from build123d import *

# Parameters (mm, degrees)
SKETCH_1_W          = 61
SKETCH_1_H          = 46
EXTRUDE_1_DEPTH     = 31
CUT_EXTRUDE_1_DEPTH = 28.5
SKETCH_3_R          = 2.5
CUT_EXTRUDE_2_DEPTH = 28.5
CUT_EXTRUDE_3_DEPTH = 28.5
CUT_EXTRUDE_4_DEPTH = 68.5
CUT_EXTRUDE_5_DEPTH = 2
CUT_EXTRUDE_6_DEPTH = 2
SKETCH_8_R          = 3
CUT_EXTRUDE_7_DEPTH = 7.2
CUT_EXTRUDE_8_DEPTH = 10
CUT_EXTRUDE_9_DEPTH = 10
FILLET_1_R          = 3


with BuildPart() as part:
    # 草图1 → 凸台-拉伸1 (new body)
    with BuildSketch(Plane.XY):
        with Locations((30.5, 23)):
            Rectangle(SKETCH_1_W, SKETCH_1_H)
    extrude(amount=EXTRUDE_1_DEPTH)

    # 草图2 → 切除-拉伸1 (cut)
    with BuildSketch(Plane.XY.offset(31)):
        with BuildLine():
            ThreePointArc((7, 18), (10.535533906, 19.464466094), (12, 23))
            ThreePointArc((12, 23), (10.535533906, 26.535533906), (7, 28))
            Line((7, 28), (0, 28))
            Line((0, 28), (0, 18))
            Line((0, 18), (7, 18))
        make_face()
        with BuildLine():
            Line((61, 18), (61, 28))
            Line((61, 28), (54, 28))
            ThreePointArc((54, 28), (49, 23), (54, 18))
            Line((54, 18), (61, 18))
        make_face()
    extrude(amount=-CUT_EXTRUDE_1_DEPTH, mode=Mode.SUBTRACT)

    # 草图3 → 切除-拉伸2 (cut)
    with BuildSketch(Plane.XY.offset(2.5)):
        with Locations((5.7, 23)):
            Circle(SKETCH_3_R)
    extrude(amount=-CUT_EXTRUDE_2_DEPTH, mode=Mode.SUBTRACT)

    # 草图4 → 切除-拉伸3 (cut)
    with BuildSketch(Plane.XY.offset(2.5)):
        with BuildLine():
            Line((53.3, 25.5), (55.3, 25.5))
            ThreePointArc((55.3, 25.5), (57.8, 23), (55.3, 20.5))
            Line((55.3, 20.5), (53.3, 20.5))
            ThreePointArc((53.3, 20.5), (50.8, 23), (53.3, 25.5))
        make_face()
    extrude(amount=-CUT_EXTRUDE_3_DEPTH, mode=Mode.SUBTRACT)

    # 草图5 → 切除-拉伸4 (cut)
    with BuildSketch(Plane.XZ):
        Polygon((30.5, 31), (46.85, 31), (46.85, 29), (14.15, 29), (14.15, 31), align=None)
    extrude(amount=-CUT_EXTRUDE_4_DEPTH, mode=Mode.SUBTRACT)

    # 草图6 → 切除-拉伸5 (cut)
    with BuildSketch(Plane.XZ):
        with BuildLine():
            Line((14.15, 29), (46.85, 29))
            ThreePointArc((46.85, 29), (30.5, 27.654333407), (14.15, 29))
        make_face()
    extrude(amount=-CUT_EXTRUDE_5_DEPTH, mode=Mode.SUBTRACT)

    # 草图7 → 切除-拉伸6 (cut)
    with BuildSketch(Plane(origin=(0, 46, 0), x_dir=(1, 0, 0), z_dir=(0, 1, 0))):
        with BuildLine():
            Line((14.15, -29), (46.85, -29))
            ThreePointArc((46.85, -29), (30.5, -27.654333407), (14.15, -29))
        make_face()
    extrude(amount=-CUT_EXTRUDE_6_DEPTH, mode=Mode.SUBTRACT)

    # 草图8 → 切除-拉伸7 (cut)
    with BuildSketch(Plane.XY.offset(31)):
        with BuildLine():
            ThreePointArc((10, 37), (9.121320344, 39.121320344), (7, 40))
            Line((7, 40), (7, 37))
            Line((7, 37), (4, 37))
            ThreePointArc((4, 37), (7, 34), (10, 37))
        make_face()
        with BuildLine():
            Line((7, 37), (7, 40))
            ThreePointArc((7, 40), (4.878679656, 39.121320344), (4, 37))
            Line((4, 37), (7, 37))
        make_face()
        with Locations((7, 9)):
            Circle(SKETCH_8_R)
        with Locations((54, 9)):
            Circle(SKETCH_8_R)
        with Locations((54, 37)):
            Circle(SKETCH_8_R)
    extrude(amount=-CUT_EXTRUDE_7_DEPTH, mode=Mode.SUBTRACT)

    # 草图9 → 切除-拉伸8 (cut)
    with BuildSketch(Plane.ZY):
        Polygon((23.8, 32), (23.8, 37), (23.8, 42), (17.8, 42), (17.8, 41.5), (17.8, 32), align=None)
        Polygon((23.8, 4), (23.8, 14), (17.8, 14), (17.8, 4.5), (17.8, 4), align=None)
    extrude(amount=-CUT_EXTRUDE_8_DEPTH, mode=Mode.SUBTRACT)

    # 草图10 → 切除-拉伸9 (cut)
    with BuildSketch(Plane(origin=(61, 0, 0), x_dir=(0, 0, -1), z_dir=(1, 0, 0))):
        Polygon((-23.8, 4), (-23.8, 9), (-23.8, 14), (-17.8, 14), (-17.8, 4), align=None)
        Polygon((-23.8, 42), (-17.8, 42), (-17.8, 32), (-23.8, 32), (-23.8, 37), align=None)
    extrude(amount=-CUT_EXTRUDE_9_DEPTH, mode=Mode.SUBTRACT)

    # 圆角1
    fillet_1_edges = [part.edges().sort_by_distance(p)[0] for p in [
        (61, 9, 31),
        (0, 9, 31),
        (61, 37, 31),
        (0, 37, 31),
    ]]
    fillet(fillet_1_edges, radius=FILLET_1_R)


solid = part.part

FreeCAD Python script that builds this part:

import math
import FreeCAD as App
import Part
import Sketcher

V = App.Vector


def edges_at(feature, points):
    """Names of the edges that pass closest to the given points."""
    edges = feature.Shape.Edges
    near = lambda p: min(range(len(edges)), key=lambda i: edges[i].distToShape(Part.Vertex(*p))[0])
    return sorted({f"Edge{near(p) + 1}" for p in points})


def add_polygon(sketch, points):
    """Adds a closed chain of lines whose ends are joined by coincident constraints."""
    first, n = sketch.GeometryCount, len(points)
    for a, b in zip(points, points[1:] + points[:1]):
        sketch.addGeometry(Part.LineSegment(App.Vector(*a, 0), App.Vector(*b, 0)), False)
    for i in range(n):
        sketch.addConstraint(Sketcher.Constraint("Coincident", first + i, 2, first + (i + 1) % n, 1))

doc = App.newDocument("Part")
body = doc.addObject("PartDesign::Body", "Body")

sketch1 = doc.addObject("Sketcher::SketchObject", "Sketch")
body.addObject(sketch1)
sketch1.AttachmentSupport = (doc.XY_Plane, [""])
sketch1.MapMode = "FlatFace"
add_polygon(sketch1, [(0, 46), (0, 0), (61, 0), (61, 46)])
sketch1.addConstraint(Sketcher.Constraint("Vertical", 0))
sketch1.addConstraint(Sketcher.Constraint("Horizontal", 1))
sketch1.addConstraint(Sketcher.Constraint("Vertical", 2))
sketch1.addConstraint(Sketcher.Constraint("Horizontal", 3))
sketch1.addConstraint(Sketcher.Constraint("Coincident", 0, 2, -1, 1))
sketch1.addConstraint(Sketcher.Constraint("DistanceX", 1, 1, 1, 2, 61.0))
sketch1.addConstraint(Sketcher.Constraint("DistanceY", 0, 2, 0, 1, 46.0))
pad1 = doc.addObject("PartDesign::Pad", "Pad")
body.addObject(pad1)
pad1.Profile = sketch1
pad1.Length = 31

sketch2 = doc.addObject("Sketcher::SketchObject", "Sketch001")
body.addObject(sketch2)
sketch2.AttachmentSupport = (doc.XY_Plane, [""])
sketch2.MapMode = "FlatFace"
sketch2.AttachmentOffset = App.Placement(V(0, 0, 31), App.Rotation())
sketch2.addGeometry(Part.ArcOfCircle(Part.Circle(V(7, 23, 0), V(0, 0, 1), 5), math.radians(-90), math.radians(0)), False)
sketch2.addGeometry(Part.ArcOfCircle(Part.Circle(V(7, 23, 0), V(0, 0, 1), 5), math.radians(0), math.radians(90)), False)
sketch2.addGeometry(Part.LineSegment(V(7, 28, 0), V(0, 28, 0)), False)
sketch2.addGeometry(Part.LineSegment(V(0, 28, 0), V(0, 18, 0)), False)
sketch2.addGeometry(Part.LineSegment(V(0, 18, 0), V(7, 18, 0)), False)
sketch2.addGeometry(Part.LineSegment(V(61, 18, 0), V(61, 28, 0)), False)
sketch2.addGeometry(Part.LineSegment(V(61, 28, 0), V(54, 28, 0)), False)
sketch2.addGeometry(Part.ArcOfCircle(Part.Circle(V(54, 23, 0), V(0, 0, 1), 5), math.radians(90), math.radians(270)), False)
sketch2.addGeometry(Part.LineSegment(V(54, 18, 0), V(61, 18, 0)), False)
sketch2.addConstraint(Sketcher.Constraint("Tangent", 0, 2, 1, 1))
sketch2.addConstraint(Sketcher.Constraint("Tangent", 1, 2, 2, 1))
sketch2.addConstraint(Sketcher.Constraint("Coincident", 2, 2, 3, 1))
sketch2.addConstraint(Sketcher.Constraint("Coincident", 3, 2, 4, 1))
sketch2.addConstraint(Sketcher.Constraint("Tangent", 4, 2, 0, 1))
sketch2.addConstraint(Sketcher.Constraint("Coincident", 5, 2, 6, 1))
sketch2.addConstraint(Sketcher.Constraint("Tangent", 6, 2, 7, 1))
sketch2.addConstraint(Sketcher.Constraint("Tangent", 7, 2, 8, 1))
sketch2.addConstraint(Sketcher.Constraint("Coincident", 8, 2, 5, 1))
sketch2.addConstraint(Sketcher.Constraint("Horizontal", 2))
sketch2.addConstraint(Sketcher.Constraint("Vertical", 3))
sketch2.addConstraint(Sketcher.Constraint("Horizontal", 4))
sketch2.addConstraint(Sketcher.Constraint("Vertical", 5))
sketch2.addConstraint(Sketcher.Constraint("Horizontal", 6))
sketch2.addConstraint(Sketcher.Constraint("Horizontal", 8))
sketch2.addConstraint(Sketcher.Constraint("Equal", 0, 1))
sketch2.addConstraint(Sketcher.Constraint("Equal", 1, 7))
sketch2.addConstraint(Sketcher.Constraint("PointOnObject", 2, 2, -2))
sketch2.addConstraint(Sketcher.Constraint("Horizontal", 1, 3, 7, 3))
sketch2.addConstraint(Sketcher.Constraint("Horizontal", 7, 3, 0, 2))
sketch2.addConstraint(Sketcher.Constraint("Equal", 4, 6))
sketch2.addConstraint(Sketcher.Constraint("Radius", 0, 5.0))
sketch2.addConstraint(Sketcher.Constraint("DistanceX", 2, 2, 2, 1, 7.0))
sketch2.addConstraint(Sketcher.Constraint("DistanceY", -1, 1, 0, 3, 23.0))
sketch2.addConstraint(Sketcher.Constraint("DistanceX", -1, 1, 7, 3, 54.0))
pocket1 = doc.addObject("PartDesign::Pocket", "Pocket")
body.addObject(pocket1)
pocket1.Profile = sketch2
pocket1.Length = 28.5

sketch3 = doc.addObject("Sketcher::SketchObject", "Sketch002")
body.addObject(sketch3)
sketch3.AttachmentSupport = (doc.XY_Plane, [""])
sketch3.MapMode = "FlatFace"
sketch3.AttachmentOffset = App.Placement(V(0, 0, 2.5), App.Rotation())
sketch3.addGeometry(Part.Circle(V(5.7, 23, 0), V(0, 0, 1), 2.5), False)
sketch3.addConstraint(Sketcher.Constraint("Diameter", 0, 5.0))
sketch3.addConstraint(Sketcher.Constraint("DistanceY", -1, 1, 0, 3, 23.0))
sketch3.addConstraint(Sketcher.Constraint("DistanceX", -1, 1, 0, 3, 5.7))
pocket2 = doc.addObject("PartDesign::Pocket", "Pocket001")
body.addObject(pocket2)
pocket2.Profile = sketch3
pocket2.Length = 28.5

sketch4 = doc.addObject("Sketcher::SketchObject", "Sketch003")
body.addObject(sketch4)
sketch4.AttachmentSupport = (doc.XY_Plane, [""])
sketch4.MapMode = "FlatFace"
sketch4.AttachmentOffset = App.Placement(V(0, 0, 2.5), App.Rotation())
sketch4.addGeometry(Part.LineSegment(V(55.3, 25.5, 0), V(53.3, 25.5, 0)), False)
sketch4.addGeometry(Part.ArcOfCircle(Part.Circle(V(53.3, 23, 0), V(0, 0, 1), 2.5), math.radians(90), math.radians(270)), False)
sketch4.addGeometry(Part.LineSegment(V(53.3, 20.5, 0), V(55.3, 20.5, 0)), False)
sketch4.addGeometry(Part.ArcOfCircle(Part.Circle(V(55.3, 23, 0), V(0, 0, 1), 2.5), math.radians(-90), math.radians(90)), False)
sketch4.addConstraint(Sketcher.Constraint("Tangent", 0, 2, 1, 1))
sketch4.addConstraint(Sketcher.Constraint("Tangent", 1, 2, 2, 1))
sketch4.addConstraint(Sketcher.Constraint("Tangent", 2, 2, 3, 1))
sketch4.addConstraint(Sketcher.Constraint("Tangent", 3, 2, 0, 1))
sketch4.addConstraint(Sketcher.Constraint("Horizontal", 0))
sketch4.addConstraint(Sketcher.Constraint("Horizontal", 2))
sketch4.addConstraint(Sketcher.Constraint("Radius", 1, 2.5))
sketch4.addConstraint(Sketcher.Constraint("DistanceX", 0, 2, 0, 1, 2.0))
sketch4.addConstraint(Sketcher.Constraint("DistanceY", -1, 1, 1, 3, 23.0))
sketch4.addConstraint(Sketcher.Constraint("DistanceX", -1, 1, 1, 3, 53.3))
pocket3 = doc.addObject("PartDesign::Pocket", "Pocket002")
body.addObject(pocket3)
pocket3.Profile = sketch4
pocket3.Length = 28.5

sketch5 = doc.addObject("Sketcher::SketchObject", "Sketch004")
body.addObject(sketch5)
sketch5.AttachmentSupport = (doc.XZ_Plane, [""])
sketch5.MapMode = "FlatFace"
add_polygon(sketch5, [(46.85, 31), (14.15, 31), (14.15, 29), (46.85, 29)])
sketch5.addConstraint(Sketcher.Constraint("Horizontal", 0))
sketch5.addConstraint(Sketcher.Constraint("Vertical", 1))
sketch5.addConstraint(Sketcher.Constraint("Horizontal", 2))
sketch5.addConstraint(Sketcher.Constraint("Vertical", 3))
sketch5.addConstraint(Sketcher.Constraint("DistanceY", 1, 2, 1, 1, 2.0))
sketch5.addConstraint(Sketcher.Constraint("DistanceX", 0, 2, 0, 1, 32.7))
sketch5.addConstraint(Sketcher.Constraint("DistanceY", -1, 1, 0, 2, 31.0))
sketch5.addConstraint(Sketcher.Constraint("DistanceX", -1, 1, 0, 2, 14.15))
pocket4 = doc.addObject("PartDesign::Pocket", "Pocket003")
body.addObject(pocket4)
pocket4.Profile = sketch5
pocket4.Length = 68.5

sketch6 = doc.addObject("Sketcher::SketchObject", "Sketch005")
body.addObject(sketch6)
sketch6.AttachmentSupport = (doc.XZ_Plane, [""])
sketch6.MapMode = "FlatFace"
sketch6.addGeometry(Part.LineSegment(V(46.85, 29, 0), V(14.15, 29, 0)), False)
sketch6.addGeometry(Part.ArcOfCircle(Part.Circle(V(30.5, 127.654333, 0), V(0, 0, 1), 100), math.radians(-99.410107), math.radians(-80.589893)), False)
sketch6.addConstraint(Sketcher.Constraint("Coincident", 0, 1, 1, 2))
sketch6.addConstraint(Sketcher.Constraint("Coincident", 1, 1, 0, 2))
sketch6.addConstraint(Sketcher.Constraint("Horizontal", 0))
sketch6.addConstraint(Sketcher.Constraint("Radius", 1, 100.0))
sketch6.addConstraint(Sketcher.Constraint("DistanceX", 0, 2, 0, 1, 32.7))
sketch6.addConstraint(Sketcher.Constraint("DistanceY", -1, 1, 0, 1, 29.0))
sketch6.addConstraint(Sketcher.Constraint("DistanceX", -1, 1, 1, 3, 30.5))
pocket5 = doc.addObject("PartDesign::Pocket", "Pocket004")
body.addObject(pocket5)
pocket5.Profile = sketch6
pocket5.Length = 2

sketch7 = doc.addObject("Sketcher::SketchObject", "Sketch006")
body.addObject(sketch7)
sketch7.AttachmentSupport = (doc.XZ_Plane, [""])
sketch7.MapMode = "FlatFace"
sketch7.AttachmentOffset = App.Placement(V(0, 0, -46), App.Rotation())
sketch7.addGeometry(Part.LineSegment(V(14.15, 29, 0), V(46.85, 29, 0)), False)
sketch7.addGeometry(Part.ArcOfCircle(Part.Circle(V(30.5, 127.654333, 0), V(0, 0, 1), 100), math.radians(-99.410107), math.radians(-80.589893)), False)
sketch7.addConstraint(Sketcher.Constraint("Coincident", 0, 1, 1, 1))
sketch7.addConstraint(Sketcher.Constraint("Coincident", 1, 2, 0, 2))
sketch7.addConstraint(Sketcher.Constraint("Horizontal", 0))
sketch7.addConstraint(Sketcher.Constraint("Radius", 1, 100.0))
sketch7.addConstraint(Sketcher.Constraint("DistanceX", 0, 1, 0, 2, 32.7))
sketch7.addConstraint(Sketcher.Constraint("DistanceY", -1, 1, 0, 1, 29.0))
sketch7.addConstraint(Sketcher.Constraint("DistanceX", -1, 1, 1, 3, 30.5))
pocket6 = doc.addObject("PartDesign::Pocket", "Pocket005")
body.addObject(pocket6)
pocket6.Profile = sketch7
pocket6.Length = 2
pocket6.Reversed = True

sketch8 = doc.addObject("Sketcher::SketchObject", "Sketch007")
body.addObject(sketch8)
sketch8.AttachmentSupport = (doc.XY_Plane, [""])
sketch8.MapMode = "FlatFace"
sketch8.AttachmentOffset = App.Placement(V(0, 0, 31), App.Rotation())
sketch8.addGeometry(Part.ArcOfCircle(Part.Circle(V(7, 37, 0), V(0, 0, 1), 3), math.radians(0), math.radians(90)), False)
sketch8.addGeometry(Part.ArcOfCircle(Part.Circle(V(7, 37, 0), V(0, 0, 1), 3), math.radians(90), math.radians(180)), False)
sketch8.addGeometry(Part.ArcOfCircle(Part.Circle(V(7, 37, 0), V(0, 0, 1), 3), math.radians(180), math.radians(360)), False)
sketch8.addGeometry(Part.Circle(V(7, 9, 0), V(0, 0, 1), 3), False)
sketch8.addGeometry(Part.Circle(V(54, 9, 0), V(0, 0, 1), 3), False)
sketch8.addGeometry(Part.Circle(V(54, 37, 0), V(0, 0, 1), 3), False)
sketch8.addConstraint(Sketcher.Constraint("Tangent", 0, 2, 1, 1))
sketch8.addConstraint(Sketcher.Constraint("Tangent", 1, 2, 2, 1))
sketch8.addConstraint(Sketcher.Constraint("Tangent", 2, 2, 0, 1))
sketch8.addConstraint(Sketcher.Constraint("Equal", 2, 3))
sketch8.addConstraint(Sketcher.Constraint("Equal", 3, 4))
sketch8.addConstraint(Sketcher.Constraint("Equal", 4, 5))
sketch8.addConstraint(Sketcher.Constraint("Horizontal", 3, 3, 4, 3))
sketch8.addConstraint(Sketcher.Constraint("Horizontal", 2, 3, 5, 3))
sketch8.addConstraint(Sketcher.Constraint("Horizontal", 5, 3, 1, 2))
sketch8.addConstraint(Sketcher.Constraint("Horizontal", 1, 2, 2, 2))
sketch8.addConstraint(Sketcher.Constraint("Vertical", 2, 3, 3, 3))
sketch8.addConstraint(Sketcher.Constraint("Vertical", 4, 3, 5, 3))
sketch8.addConstraint(Sketcher.Constraint("Vertical", 3, 3, 0, 2))
sketch8.addConstraint(Sketcher.Constraint("Diameter", 3, 6.0))
sketch8.addConstraint(Sketcher.Constraint("DistanceX", -1, 1, 0, 3, 7.0))
sketch8.addConstraint(Sketcher.Constraint("DistanceY", -1, 1, 0, 3, 37.0))
sketch8.addConstraint(Sketcher.Constraint("DistanceY", -1, 1, 3, 3, 9.0))
sketch8.addConstraint(Sketcher.Constraint("DistanceX", -1, 1, 4, 3, 54.0))
pocket7 = doc.addObject("PartDesign::Pocket", "Pocket006")
body.addObject(pocket7)
pocket7.Profile = sketch8
pocket7.Length = 7.2

sketch9 = doc.addObject("Sketcher::SketchObject", "Sketch008")
body.addObject(sketch9)
sketch9.AttachmentSupport = (doc.YZ_Plane, [""])
sketch9.MapMode = "FlatFace"
add_polygon(sketch9, [(32, 23.8), (42, 23.8), (42, 17.8), (32, 17.8)])
add_polygon(sketch9, [(4, 23.8), (14, 23.8), (14, 17.8), (4, 17.8)])
sketch9.addConstraint(Sketcher.Constraint("Horizontal", 0))
sketch9.addConstraint(Sketcher.Constraint("Vertical", 1))
sketch9.addConstraint(Sketcher.Constraint("Horizontal", 2))
sketch9.addConstraint(Sketcher.Constraint("Vertical", 3))
sketch9.addConstraint(Sketcher.Constraint("Horizontal", 4))
sketch9.addConstraint(Sketcher.Constraint("Vertical", 5))
sketch9.addConstraint(Sketcher.Constraint("Horizontal", 6))
sketch9.addConstraint(Sketcher.Constraint("Vertical", 7))
sketch9.addConstraint(Sketcher.Constraint("Horizontal", 3, 2, 4, 2))
sketch9.addConstraint(Sketcher.Constraint("Horizontal", 2, 2, 5, 2))
sketch9.addConstraint(Sketcher.Constraint("Equal", 2, 4))
sketch9.addConstraint(Sketcher.Constraint("DistanceX", 0, 1, 0, 2, 10.0))
sketch9.addConstraint(Sketcher.Constraint("DistanceY", 1, 2, 1, 1, 6.0))
sketch9.addConstraint(Sketcher.Constraint("DistanceX", -1, 1, 0, 2, 42.0))
sketch9.addConstraint(Sketcher.Constraint("DistanceX", -1, 1, 4, 2, 14.0))
sketch9.addConstraint(Sketcher.Constraint("DistanceY", -1, 1, 0, 2, 23.8))
pocket8 = doc.addObject("PartDesign::Pocket", "Pocket007")
body.addObject(pocket8)
pocket8.Profile = sketch9
pocket8.Length = 10
pocket8.Reversed = True

sketch10 = doc.addObject("Sketcher::SketchObject", "Sketch009")
body.addObject(sketch10)
sketch10.AttachmentSupport = (doc.YZ_Plane, [""])
sketch10.MapMode = "FlatFace"
sketch10.AttachmentOffset = App.Placement(V(0, 0, 61), App.Rotation())
add_polygon(sketch10, [(14, 23.8), (4, 23.8), (4, 17.8), (14, 17.8)])
add_polygon(sketch10, [(42, 17.8), (42, 23.8), (32, 23.8), (32, 17.8)])
sketch10.addConstraint(Sketcher.Constraint("Horizontal", 0))
sketch10.addConstraint(Sketcher.Constraint("Vertical", 1))
sketch10.addConstraint(Sketcher.Constraint("Horizontal", 2))
sketch10.addConstraint(Sketcher.Constraint("Vertical", 3))
sketch10.addConstraint(Sketcher.Constraint("Vertical", 4))
sketch10.addConstraint(Sketcher.Constraint("Horizontal", 5))
sketch10.addConstraint(Sketcher.Constraint("Vertical", 6))
sketch10.addConstraint(Sketcher.Constraint("Horizontal", 7))
sketch10.addConstraint(Sketcher.Constraint("Horizontal", 3, 2, 4, 2))
sketch10.addConstraint(Sketcher.Constraint("Horizontal", 2, 2, 6, 2))
sketch10.addConstraint(Sketcher.Constraint("Equal", 2, 5))
sketch10.addConstraint(Sketcher.Constraint("DistanceX", 0, 2, 0, 1, 10.0))
sketch10.addConstraint(Sketcher.Constraint("DistanceY", 1, 2, 1, 1, 6.0))
sketch10.addConstraint(Sketcher.Constraint("DistanceX", -1, 1, 0, 2, 4.0))
sketch10.addConstraint(Sketcher.Constraint("DistanceX", -1, 1, 4, 2, 42.0))
sketch10.addConstraint(Sketcher.Constraint("DistanceY", -1, 1, 0, 2, 23.8))
pocket9 = doc.addObject("PartDesign::Pocket", "Pocket008")
body.addObject(pocket9)
pocket9.Profile = sketch10
pocket9.Length = 10
doc.recompute()

fillet = doc.addObject("PartDesign::Fillet", "Fillet")
body.addObject(fillet)
fillet.Base = (pocket9, edges_at(pocket9, [
    (61, 9, 31),
    (0, 9, 31),
    (61, 37, 31),
    (0, 37, 31),
]))
fillet.Radius = 3

doc.recompute()
